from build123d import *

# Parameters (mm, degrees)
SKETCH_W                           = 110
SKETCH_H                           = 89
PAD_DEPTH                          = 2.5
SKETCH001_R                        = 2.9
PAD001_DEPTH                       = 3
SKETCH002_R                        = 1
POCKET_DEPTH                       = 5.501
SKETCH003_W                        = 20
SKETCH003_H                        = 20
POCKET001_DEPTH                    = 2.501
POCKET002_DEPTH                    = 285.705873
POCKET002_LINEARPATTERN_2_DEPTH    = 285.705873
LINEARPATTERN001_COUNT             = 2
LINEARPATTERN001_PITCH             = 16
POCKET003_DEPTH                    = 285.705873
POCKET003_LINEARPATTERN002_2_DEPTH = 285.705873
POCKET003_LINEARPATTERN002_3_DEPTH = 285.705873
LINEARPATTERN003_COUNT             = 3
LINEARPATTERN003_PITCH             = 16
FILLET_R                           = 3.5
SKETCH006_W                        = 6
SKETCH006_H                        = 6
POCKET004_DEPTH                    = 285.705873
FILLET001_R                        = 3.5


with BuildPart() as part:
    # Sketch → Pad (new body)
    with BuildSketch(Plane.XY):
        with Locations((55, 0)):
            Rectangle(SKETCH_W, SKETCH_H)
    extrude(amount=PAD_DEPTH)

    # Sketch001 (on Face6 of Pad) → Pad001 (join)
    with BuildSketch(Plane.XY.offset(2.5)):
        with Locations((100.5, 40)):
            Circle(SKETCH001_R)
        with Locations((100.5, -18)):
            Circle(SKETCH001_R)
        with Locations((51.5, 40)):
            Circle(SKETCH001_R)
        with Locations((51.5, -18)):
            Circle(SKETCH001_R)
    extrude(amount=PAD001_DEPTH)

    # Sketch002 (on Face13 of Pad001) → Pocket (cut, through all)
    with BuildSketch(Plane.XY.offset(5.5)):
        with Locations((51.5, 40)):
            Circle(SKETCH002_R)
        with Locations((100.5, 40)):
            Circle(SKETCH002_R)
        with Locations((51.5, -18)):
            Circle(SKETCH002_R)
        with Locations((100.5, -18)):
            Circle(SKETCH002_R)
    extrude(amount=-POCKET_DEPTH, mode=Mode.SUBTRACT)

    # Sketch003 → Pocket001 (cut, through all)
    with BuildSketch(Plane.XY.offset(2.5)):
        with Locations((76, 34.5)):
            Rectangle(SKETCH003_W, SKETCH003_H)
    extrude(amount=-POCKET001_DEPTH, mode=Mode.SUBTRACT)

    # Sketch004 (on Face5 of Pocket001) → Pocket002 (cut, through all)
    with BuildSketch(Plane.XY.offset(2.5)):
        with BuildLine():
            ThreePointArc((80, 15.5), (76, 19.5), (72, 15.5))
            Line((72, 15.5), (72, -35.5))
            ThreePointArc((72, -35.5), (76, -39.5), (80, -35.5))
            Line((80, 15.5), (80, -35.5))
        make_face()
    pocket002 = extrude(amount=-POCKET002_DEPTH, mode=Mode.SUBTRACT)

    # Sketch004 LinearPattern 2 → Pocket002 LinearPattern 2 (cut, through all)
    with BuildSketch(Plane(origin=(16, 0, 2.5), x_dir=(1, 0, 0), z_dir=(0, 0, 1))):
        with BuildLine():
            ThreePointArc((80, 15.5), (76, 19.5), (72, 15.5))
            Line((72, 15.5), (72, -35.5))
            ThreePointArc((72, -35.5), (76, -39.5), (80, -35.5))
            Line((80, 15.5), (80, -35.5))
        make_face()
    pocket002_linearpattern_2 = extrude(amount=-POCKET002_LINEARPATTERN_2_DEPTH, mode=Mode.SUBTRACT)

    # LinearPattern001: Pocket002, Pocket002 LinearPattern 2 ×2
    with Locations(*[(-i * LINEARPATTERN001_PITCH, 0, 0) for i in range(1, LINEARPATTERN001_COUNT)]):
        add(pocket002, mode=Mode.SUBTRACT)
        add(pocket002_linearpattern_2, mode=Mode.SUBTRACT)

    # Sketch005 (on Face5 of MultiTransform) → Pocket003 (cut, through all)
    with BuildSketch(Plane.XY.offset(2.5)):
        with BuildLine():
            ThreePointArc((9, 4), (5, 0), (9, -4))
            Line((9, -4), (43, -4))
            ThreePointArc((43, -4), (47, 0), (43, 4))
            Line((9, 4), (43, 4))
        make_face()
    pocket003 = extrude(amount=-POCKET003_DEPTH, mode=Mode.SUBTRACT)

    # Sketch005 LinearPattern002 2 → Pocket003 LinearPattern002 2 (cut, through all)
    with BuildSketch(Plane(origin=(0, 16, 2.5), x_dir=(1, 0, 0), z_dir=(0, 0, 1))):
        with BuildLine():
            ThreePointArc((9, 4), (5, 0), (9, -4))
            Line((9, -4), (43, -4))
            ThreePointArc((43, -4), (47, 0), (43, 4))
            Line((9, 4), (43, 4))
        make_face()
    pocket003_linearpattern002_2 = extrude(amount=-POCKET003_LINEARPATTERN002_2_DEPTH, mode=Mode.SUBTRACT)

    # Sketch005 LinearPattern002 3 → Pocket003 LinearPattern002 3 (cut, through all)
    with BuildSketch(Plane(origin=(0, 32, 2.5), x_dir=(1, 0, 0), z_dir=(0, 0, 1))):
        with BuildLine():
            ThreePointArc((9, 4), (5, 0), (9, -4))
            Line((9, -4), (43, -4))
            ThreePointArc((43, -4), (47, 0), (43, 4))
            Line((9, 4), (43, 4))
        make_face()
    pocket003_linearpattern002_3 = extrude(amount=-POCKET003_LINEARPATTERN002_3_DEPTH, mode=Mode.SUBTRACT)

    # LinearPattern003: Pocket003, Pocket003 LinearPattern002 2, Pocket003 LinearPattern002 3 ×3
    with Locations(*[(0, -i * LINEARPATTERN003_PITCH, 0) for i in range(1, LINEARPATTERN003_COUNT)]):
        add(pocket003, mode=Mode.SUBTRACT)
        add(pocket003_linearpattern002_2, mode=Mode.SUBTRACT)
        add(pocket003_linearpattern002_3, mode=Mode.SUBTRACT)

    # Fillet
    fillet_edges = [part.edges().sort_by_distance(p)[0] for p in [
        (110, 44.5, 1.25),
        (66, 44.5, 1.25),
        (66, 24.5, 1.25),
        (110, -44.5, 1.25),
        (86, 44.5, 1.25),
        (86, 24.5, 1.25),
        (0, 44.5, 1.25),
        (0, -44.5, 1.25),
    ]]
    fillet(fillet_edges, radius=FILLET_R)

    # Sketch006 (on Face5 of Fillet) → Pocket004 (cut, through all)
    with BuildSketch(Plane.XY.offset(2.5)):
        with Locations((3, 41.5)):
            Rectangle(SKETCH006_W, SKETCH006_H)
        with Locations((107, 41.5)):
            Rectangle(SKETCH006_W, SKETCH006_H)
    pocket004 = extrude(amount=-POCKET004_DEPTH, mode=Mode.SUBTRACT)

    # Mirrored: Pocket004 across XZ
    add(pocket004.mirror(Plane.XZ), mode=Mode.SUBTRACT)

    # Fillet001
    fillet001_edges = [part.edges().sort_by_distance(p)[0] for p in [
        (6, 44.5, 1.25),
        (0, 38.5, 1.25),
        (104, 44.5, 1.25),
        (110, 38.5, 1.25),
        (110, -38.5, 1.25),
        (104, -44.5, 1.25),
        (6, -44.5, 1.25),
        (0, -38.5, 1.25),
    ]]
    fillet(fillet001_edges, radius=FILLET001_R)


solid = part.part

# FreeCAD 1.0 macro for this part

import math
import FreeCAD as App
import Part
import Sketcher

V = App.Vector


def edges_at(feature, points):
    """Names of the edges that pass closest to the given points."""
    edges = feature.Shape.Edges
    near = lambda p: min(range(len(edges)), key=lambda i: edges[i].distToShape(Part.Vertex(*p))[0])
    return sorted({f"Edge{near(p) + 1}" for p in points})


def add_polygon(sketch, points):
    """Adds a closed chain of lines whose ends are joined by coincident constraints."""
    first, n = sketch.GeometryCount, len(points)
    for a, b in zip(points, points[1:] + points[:1]):
        sketch.addGeometry(Part.LineSegment(App.Vector(*a, 0), App.Vector(*b, 0)), False)
    for i in range(n):
        sketch.addConstraint(Sketcher.Constraint("Coincident", first + i, 2, first + (i + 1) % n, 1))

doc = App.newDocument("Part")
params = doc.addObject("Spreadsheet::Sheet", "Params")
for row, (alias, value) in enumerate([
    ("sketch1_width", "110 mm"),
    ("sketch1_height", "89 mm"),
    ("pad1_length", "2.5 mm"),
    ("sketch2_diameter", "5.8 mm"),
    ("pad2_length", "3 mm"),
    ("sketch3_diameter", "2 mm"),
    ("sketch4_width", "20 mm"),
    ("sketch5_radius", "4 mm"),
    ("sketch5_height", "51 mm"),
    ("sketch6_radius", "4 mm"),
    ("sketch6_height", "51 mm"),
    ("linearpattern_pitch", "16 mm"),
    ("sketch7_radius", "4 mm"),
    ("sketch7_width", "34 mm"),
    ("sketch8_radius", "4 mm"),
    ("sketch8_width", "34 mm"),
    ("sketch9_radius", "4 mm"),
    ("sketch9_width", "34 mm"),
    ("linearpattern2_pitch", "16 mm"),
    ("fillet_radius", "3.5 mm"),
    ("sketch10_width", "6 mm"),
    ("fillet2_radius", "3.5 mm"),
], start=1):
    params.set(f"A{row}", alias)
    params.set(f"B{row}", "=" + value)
    params.setAlias(f"B{row}", alias)

body = doc.addObject("PartDesign::Body", "Body")

sketch1 = body.newObject("Sketcher::SketchObject", "Sketch")
sketch1.AttachmentSupport = (doc.getObject("XY_Plane"), [""])
sketch1.MapMode = "FlatFace"
add_polygon(sketch1, [(0, 44), (0, -44), (110, -44), (110, 44)])
sketch1.addConstraint(Sketcher.Constraint("Vertical", 0))
sketch1.addConstraint(Sketcher.Constraint("Horizontal", 1))
sketch1.addConstraint(Sketcher.Constraint("Vertical", 2))
sketch1.addConstraint(Sketcher.Constraint("Horizontal", 3))
sketch1.addConstraint(Sketcher.Constraint("Symmetric", 0, 2, 3, 2, -1, 1))
sketch1.addConstraint(Sketcher.Constraint("DistanceX", 1, 1, 1, 2, 110.0))
sketch1.addConstraint(Sketcher.Constraint("DistanceY", 0, 2, 0, 1, 89.0))
sketch1.setExpression("Constraints[9]", "Params.sketch1_width")
sketch1.setExpression("Constraints[10]", "Params.sketch1_height")
pad1 = body.newObject("PartDesign::Pad", "Pad")
pad1.Profile = sketch1
pad1.setExpression("Length", "Params.pad1_length")

sketch2 = body.newObject("Sketcher::SketchObject", "Sketch001")
sketch2.AttachmentSupport = (doc.getObject("XY_Plane"), [""])
sketch2.MapMode = "FlatFace"
sketch2.AttachmentOffset = App.Placement(V(0, 0, 2.5), App.Rotation())
sketch2.addGeometry(Part.Circle(V(100.5, 40, 0), V(0, 0, 1), 2.9), False)
sketch2.addGeometry(Part.Circle(V(100.5, -18, 0), V(0, 0, 1), 2.9), False)
sketch2.addGeometry(Part.Circle(V(51.5, 40, 0), V(0, 0, 1), 2.9), False)
sketch2.addGeometry(Part.Circle(V(51.5, -18, 0), V(0, 0, 1), 2.9), False)
sketch2.addConstraint(Sketcher.Constraint("Equal", 0, 1))
sketch2.addConstraint(Sketcher.Constraint("Equal", 1, 2))
sketch2.addConstraint(Sketcher.Constraint("Equal", 2, 3))
sketch2.addConstraint(Sketcher.Constraint("Horizontal", 0, 3, 2, 3))
sketch2.addConstraint(Sketcher.Constraint("Horizontal", 1, 3, 3, 3))
sketch2.addConstraint(Sketcher.Constraint("Vertical", 0, 3, 1, 3))
sketch2.addConstraint(Sketcher.Constraint("Vertical", 2, 3, 3, 3))
sketch2.addConstraint(Sketcher.Constraint("Diameter", 0, 5.8))
sketch2.addConstraint(Sketcher.Constraint("DistanceY", -1, 1, 0, 3, 40.0))
sketch2.addConstraint(Sketcher.Constraint("DistanceY", 1, 3, -1, 1, 18.0))
sketch2.addConstraint(Sketcher.Constraint("DistanceX", 2, 3, 0, 3, 49.0))
sketch2.addConstraint(Sketcher.Constraint("DistanceX", -1, 1, 0, 3, 100.5))
sketch2.setExpression("Constraints[7]", "Params.sketch2_diameter")
pad2 = body.newObject("PartDesign::Pad", "Pad001")
pad2.Profile = sketch2
pad2.setExpression("Length", "Params.pad2_length")

sketch3 = body.newObject("Sketcher::SketchObject", "Sketch002")
sketch3.AttachmentSupport = (doc.getObject("XY_Plane"), [""])
sketch3.MapMode = "FlatFace"
sketch3.AttachmentOffset = App.Placement(V(0, 0, 5.5), App.Rotation())
sketch3.addGeometry(Part.Circle(V(51.5, 40, 0), V(0, 0, 1), 1), False)
sketch3.addGeometry(Part.Circle(V(100.5, 40, 0), V(0, 0, 1), 1), False)
sketch3.addGeometry(Part.Circle(V(51.5, -18, 0), V(0, 0, 1), 1), False)
sketch3.addGeometry(Part.Circle(V(100.5, -18, 0), V(0, 0, 1), 1), False)
sketch3.addConstraint(Sketcher.Constraint("Equal", 0, 1))
sketch3.addConstraint(Sketcher.Constraint("Equal", 1, 2))
sketch3.addConstraint(Sketcher.Constraint("Equal", 2, 3))
sketch3.addConstraint(Sketcher.Constraint("Horizontal", 0, 3, 1, 3))
sketch3.addConstraint(Sketcher.Constraint("Horizontal", 2, 3, 3, 3))
sketch3.addConstraint(Sketcher.Constraint("Vertical", 0, 3, 2, 3))
sketch3.addConstraint(Sketcher.Constraint("Vertical", 1, 3, 3, 3))
sketch3.addConstraint(Sketcher.Constraint("Diameter", 0, 2.0))
sketch3.addConstraint(Sketcher.Constraint("DistanceY", -1, 1, 0, 3, 40.0))
sketch3.addConstraint(Sketcher.Constraint("DistanceY", 2, 3, -1, 1, 18.0))
sketch3.addConstraint(Sketcher.Constraint("DistanceX", 0, 3, 1, 3, 49.0))
sketch3.addConstraint(Sketcher.Constraint("DistanceX", -1, 1, 0, 3, 51.5))
sketch3.setExpression("Constraints[7]", "Params.sketch3_diameter")
pocket1 = body.newObject("PartDesign::Pocket", "Pocket")
pocket1.Profile = sketch3
pocket1.Type = "ThroughAll"

sketch4 = body.newObject("Sketcher::SketchObject", "Sketch003")
sketch4.AttachmentSupport = (doc.getObject("XY_Plane"), [""])
sketch4.MapMode = "FlatFace"
sketch4.AttachmentOffset = App.Placement(V(0, 0, 2.5), App.Rotation())
add_polygon(sketch4, [(66, 44), (66, 24), (86, 24), (86, 44)])
sketch4.addConstraint(Sketcher.Constraint("Vertical", 0))
sketch4.addConstraint(Sketcher.Constraint("Horizontal", 1))
sketch4.addConstraint(Sketcher.Constraint("Vertical", 2))
sketch4.addConstraint(Sketcher.Constraint("Horizontal", 3))
sketch4.addConstraint(Sketcher.Constraint("Equal", 3, 0))
sketch4.addConstraint(Sketcher.Constraint("DistanceX", 1, 1, 1, 2, 20.0))
sketch4.addConstraint(Sketcher.Constraint("DistanceX", -1, 1, 0, 2, 66.0))
sketch4.addConstraint(Sketcher.Constraint("DistanceY", -1, 1, 0, 2, 24.5))
sketch4.setExpression("Constraints[9]", "Params.sketch4_width")
pocket2 = body.newObject("PartDesign::Pocket", "Pocket001")
pocket2.Profile = sketch4
pocket2.Type = "ThroughAll"

sketch5 = body.newObject("Sketcher::SketchObject", "Sketch004")
sketch5.AttachmentSupport = (doc.getObject("XY_Plane"), [""])
sketch5.MapMode = "FlatFace"
sketch5.AttachmentOffset = App.Placement(V(0, 0, 2.5), App.Rotation())
sketch5.addGeometry(Part.ArcOfCircle(Part.Circle(V(76, 15.5, 0), V(0, 0, 1), 4), math.radians(0), math.radians(180)), False)
sketch5.addGeometry(Part.LineSegment(V(72, 15.5, 0), V(72, -35.5, 0)), False)
sketch5.addGeometry(Part.ArcOfCircle(Part.Circle(V(76, -35.5, 0), V(0, 0, 1), 4), math.radians(180), math.radians(360)), False)
sketch5.addGeometry(Part.LineSegment(V(80, -35.5, 0), V(80, 15.5, 0)), False)
sketch5.addConstraint(Sketcher.Constraint("Tangent", 0, 2, 1, 1))
sketch5.addConstraint(Sketcher.Constraint("Tangent", 1, 2, 2, 1))
sketch5.addConstraint(Sketcher.Constraint("Tangent", 2, 2, 3, 1))
sketch5.addConstraint(Sketcher.Constraint("Tangent", 3, 2, 0, 1))
sketch5.addConstraint(Sketcher.Constraint("Vertical", 1))
sketch5.addConstraint(Sketcher.Constraint("Vertical", 3))
sketch5.addConstraint(Sketcher.Constraint("Radius", 0, 4.0))
sketch5.addConstraint(Sketcher.Constraint("DistanceY", 1, 2, 1, 1, 51.0))
sketch5.addConstraint(Sketcher.Constraint("DistanceX", -1, 1, 0, 3, 76.0))
sketch5.addConstraint(Sketcher.Constraint("DistanceY", -1, 1, 0, 3, 15.5))
sketch5.setExpression("Constraints[6]", "Params.sketch5_radius")
sketch5.setExpression("Constraints[7]", "Params.sketch5_height")
pocket3 = body.newObject("PartDesign::Pocket", "Pocket002")
pocket3.Profile = sketch5
pocket3.Type = "ThroughAll"

sketch6 = body.newObject("Sketcher::SketchObject", "Sketch005")
sketch6.AttachmentSupport = (doc.getObject("XY_Plane"), [""])
sketch6.MapMode = "FlatFace"
sketch6.AttachmentOffset = App.Placement(V(0, 0, 2.5), App.Rotation())
sketch6.addGeometry(Part.ArcOfCircle(Part.Circle(V(92, 15.5, 0), V(0, 0, 1), 4), math.radians(0), math.radians(180)), False)
sketch6.addGeometry(Part.LineSegment(V(88, 15.5, 0), V(88, -35.5, 0)), False)
sketch6.addGeometry(Part.ArcOfCircle(Part.Circle(V(92, -35.5, 0), V(0, 0, 1), 4), math.radians(180), math.radians(360)), False)
sketch6.addGeometry(Part.LineSegment(V(96, -35.5, 0), V(96, 15.5, 0)), False)
sketch6.addConstraint(Sketcher.Constraint("Tangent", 0, 2, 1, 1))
sketch6.addConstraint(Sketcher.Constraint("Tangent", 1, 2, 2, 1))
sketch6.addConstraint(Sketcher.Constraint("Tangent", 2, 2, 3, 1))
sketch6.addConstraint(Sketcher.Constraint("Tangent", 3, 2, 0, 1))
sketch6.addConstraint(Sketcher.Constraint("Vertical", 1))
sketch6.addConstraint(Sketcher.Constraint("Vertical", 3))
sketch6.addConstraint(Sketcher.Constraint("Radius", 0, 4.0))
sketch6.addConstraint(Sketcher.Constraint("DistanceY", 1, 2, 1, 1, 51.0))
sketch6.addConstraint(Sketcher.Constraint("DistanceX", -1, 1, 0, 3, 92.0))
sketch6.addConstraint(Sketcher.Constraint("DistanceY", -1, 1, 0, 3, 15.5))
sketch6.setExpression("Constraints[6]", "Params.sketch6_radius")
sketch6.setExpression("Constraints[7]", "Params.sketch6_height")
pocket4 = body.newObject("PartDesign::Pocket", "Pocket003")
pocket4.Profile = sketch6
pocket4.Type = "ThroughAll"
doc.recompute()

linearpattern = body.newObject("PartDesign::LinearPattern", "LinearPattern")
linearpattern.Originals = [pocket3, pocket4]
linearpattern.Direction = (doc.getObject("X_Axis"), [""])
linearpattern.Mode = "offset"
linearpattern.setExpression("Offset", "Params.linearpattern_pitch")
linearpattern.Occurrences = 2
linearpattern.Reversed = True
body.Tip = linearpattern

sketch7 = body.newObject("Sketcher::SketchObject", "Sketch006")
sketch7.AttachmentSupport = (doc.getObject("XY_Plane"), [""])
sketch7.MapMode = "FlatFace"
sketch7.AttachmentOffset = App.Placement(V(0, 0, 2.5), App.Rotation())
sketch7.addGeometry(Part.ArcOfCircle(Part.Circle(V(9, 0, 0), V(0, 0, 1), 4), math.radians(90), math.radians(270)), False)
sketch7.addGeometry(Part.LineSegment(V(9, -4, 0), V(43, -4, 0)), False)
sketch7.addGeometry(Part.ArcOfCircle(Part.Circle(V(43, 0, 0), V(0, 0, 1), 4), math.radians(-90), math.radians(90)), False)
sketch7.addGeometry(Part.LineSegment(V(43, 4, 0), V(9, 4, 0)), False)
sketch7.addConstraint(Sketcher.Constraint("Tangent", 0, 2, 1, 1))
sketch7.addConstraint(Sketcher.Constraint("Tangent", 1, 2, 2, 1))
sketch7.addConstraint(Sketcher.Constraint("Tangent", 2, 2, 3, 1))
sketch7.addConstraint(Sketcher.Constraint("Tangent", 3, 2, 0, 1))
sketch7.addConstraint(Sketcher.Constraint("Horizontal", 1))
sketch7.addConstraint(Sketcher.Constraint("Horizontal", 3))
sketch7.addConstraint(Sketcher.Constraint("PointOnObject", 0, 3, -1))
sketch7.addConstraint(Sketcher.Constraint("Radius", 0, 4.0))
sketch7.addConstraint(Sketcher.Constraint("DistanceX", 1, 1, 1, 2, 34.0))
sketch7.addConstraint(Sketcher.Constraint("DistanceX", -1, 1, 0, 3, 9.0))
sketch7.setExpression("Constraints[7]", "Params.sketch7_radius")
sketch7.setExpression("Constraints[8]", "Params.sketch7_width")
pocket5 = body.newObject("PartDesign::Pocket", "Pocket004")
pocket5.Profile = sketch7
pocket5.Type = "ThroughAll"

sketch8 = body.newObject("Sketcher::SketchObject", "Sketch007")
sketch8.AttachmentSupport = (doc.getObject("XY_Plane"), [""])
sketch8.MapMode = "FlatFace"
sketch8.AttachmentOffset = App.Placement(V(0, 0, 2.5), App.Rotation())
sketch8.addGeometry(Part.ArcOfCircle(Part.Circle(V(9, 16, 0), V(0, 0, 1), 4), math.radians(90), math.radians(270)), False)
sketch8.addGeometry(Part.LineSegment(V(9, 12, 0), V(43, 12, 0)), False)
sketch8.addGeometry(Part.ArcOfCircle(Part.Circle(V(43, 16, 0), V(0, 0, 1), 4), math.radians(-90), math.radians(90)), False)
sketch8.addGeometry(Part.LineSegment(V(43, 20, 0), V(9, 20, 0)), False)
sketch8.addConstraint(Sketcher.Constraint("Tangent", 0, 2, 1, 1))
sketch8.addConstraint(Sketcher.Constraint("Tangent", 1, 2, 2, 1))
sketch8.addConstraint(Sketcher.Constraint("Tangent", 2, 2, 3, 1))
sketch8.addConstraint(Sketcher.Constraint("Tangent", 3, 2, 0, 1))
sketch8.addConstraint(Sketcher.Constraint("Horizontal", 1))
sketch8.addConstraint(Sketcher.Constraint("Horizontal", 3))
sketch8.addConstraint(Sketcher.Constraint("Radius", 0, 4.0))
sketch8.addConstraint(Sketcher.Constraint("DistanceX", 1, 1, 1, 2, 34.0))
sketch8.addConstraint(Sketcher.Constraint("DistanceX", -1, 1, 0, 3, 9.0))
sketch8.addConstraint(Sketcher.Constraint("DistanceY", -1, 1, 0, 3, 16.0))
sketch8.setExpression("Constraints[6]", "Params.sketch8_radius")
sketch8.setExpression("Constraints[7]", "Params.sketch8_width")
pocket6 = body.newObject("PartDesign::Pocket", "Pocket005")
pocket6.Profile = sketch8
pocket6.Type = "ThroughAll"

sketch9 = body.newObject("Sketcher::SketchObject", "Sketch008")
sketch9.AttachmentSupport = (doc.getObject("XY_Plane"), [""])
sketch9.MapMode = "FlatFace"
sketch9.AttachmentOffset = App.Placement(V(0, 0, 2.5), App.Rotation())
sketch9.addGeometry(Part.ArcOfCircle(Part.Circle(V(9, 32, 0), V(0, 0, 1), 4), math.radians(90), math.radians(270)), False)
sketch9.addGeometry(Part.LineSegment(V(9, 28, 0), V(43, 28, 0)), False)
sketch9.addGeometry(Part.ArcOfCircle(Part.Circle(V(43, 32, 0), V(0, 0, 1), 4), math.radians(-90), math.radians(90)), False)
sketch9.addGeometry(Part.LineSegment(V(43, 36, 0), V(9, 36, 0)), False)
sketch9.addConstraint(Sketcher.Constraint("Tangent", 0, 2, 1, 1))
sketch9.addConstraint(Sketcher.Constraint("Tangent", 1, 2, 2, 1))
sketch9.addConstraint(Sketcher.Constraint("Tangent", 2, 2, 3, 1))
sketch9.addConstraint(Sketcher.Constraint("Tangent", 3, 2, 0, 1))
sketch9.addConstraint(Sketcher.Constraint("Horizontal", 1))
sketch9.addConstraint(Sketcher.Constraint("Horizontal", 3))
sketch9.addConstraint(Sketcher.Constraint("Radius", 0, 4.0))
sketch9.addConstraint(Sketcher.Constraint("DistanceX", 1, 1, 1, 2, 34.0))
sketch9.addConstraint(Sketcher.Constraint("DistanceX", -1, 1, 0, 3, 9.0))
sketch9.addConstraint(Sketcher.Constraint("DistanceY", -1, 1, 0, 3, 32.0))
sketch9.setExpression("Constraints[6]", "Params.sketch9_radius")
sketch9.setExpression("Constraints[7]", "Params.sketch9_width")
pocket7 = body.newObject("PartDesign::Pocket", "Pocket006")
pocket7.Profile = sketch9
pocket7.Type = "ThroughAll"
doc.recompute()

linearpattern2 = body.newObject("PartDesign::LinearPattern", "LinearPattern001")
linearpattern2.Originals = [pocket5, pocket6, pocket7]
linearpattern2.Direction = (doc.getObject("Y_Axis"), [""])
linearpattern2.Mode = "offset"
linearpattern2.setExpression("Offset", "Params.linearpattern2_pitch")
linearpattern2.Occurrences = 3
linearpattern2.Reversed = True
body.Tip = linearpattern2
doc.recompute()

fillet = body.newObject("PartDesign::Fillet", "Fillet")
fillet.Base = (linearpattern2, edges_at(linearpattern2, [
    (110, 44.5, 1.25),
    (66, 44.5, 1.25),
    (66, 24.5, 1.25),
    (110, -44.5, 1.25),
    (86, 44.5, 1.25),
    (86, 24.5, 1.25),
    (0, 44.5, 1.25),
    (0, -44.5, 1.25),
]))
fillet.setExpression("Radius", "Params.fillet_radius")

sketch10 = body.newObject("Sketcher::SketchObject", "Sketch009")
sketch10.AttachmentSupport = (doc.getObject("XY_Plane"), [""])
sketch10.MapMode = "FlatFace"
sketch10.AttachmentOffset = App.Placement(V(0, 0, 2.5), App.Rotation())
add_polygon(sketch10, [(0, 44), (0, 38), (6, 38), (6, 44)])
add_polygon(sketch10, [(104, 44), (104, 38), (110, 38), (110, 44)])
sketch10.addConstraint(Sketcher.Constraint("Vertical", 0))
sketch10.addConstraint(Sketcher.Constraint("Horizontal", 1))
sketch10.addConstraint(Sketcher.Constraint("Vertical", 2))
sketch10.addConstraint(Sketcher.Constraint("Horizontal", 3))
sketch10.addConstraint(Sketcher.Constraint("Vertical", 4))
sketch10.addConstraint(Sketcher.Constraint("Horizontal", 5))
sketch10.addConstraint(Sketcher.Constraint("Vertical", 6))
sketch10.addConstraint(Sketcher.Constraint("Horizontal", 7))
sketch10.addConstraint(Sketcher.Constraint("PointOnObject", 0, 2, -2))
sketch10.addConstraint(Sketcher.Constraint("Horizontal", 1, 2, 4, 2))
sketch10.addConstraint(Sketcher.Constraint("Horizontal", 3, 2, 6, 2))
sketch10.addConstraint(Sketcher.Constraint("Equal", 3, 5))
sketch10.addConstraint(Sketcher.Constraint("Equal", 7, 0))
sketch10.addConstraint(Sketcher.Constraint("DistanceX", 1, 1, 1, 2, 6.0))
sketch10.addConstraint(Sketcher.Constraint("DistanceX", -1, 1, 4, 2, 104.0))
sketch10.addConstraint(Sketcher.Constraint("DistanceY", -1, 1, 0, 2, 38.5))
sketch10.setExpression("Constraints[21]", "Params.sketch10_width")
pocket8 = body.newObject("PartDesign::Pocket", "Pocket007")
pocket8.Profile = sketch10
pocket8.Type = "ThroughAll"
doc.recompute()

mirrored = body.newObject("PartDesign::Mirrored", "Mirrored")
mirrored.Originals = [pocket8]
mirrored.MirrorPlane = (doc.getObject("XZ_Plane"), [""])
body.Tip = mirrored
doc.recompute()

fillet2 = body.newObject("PartDesign::Fillet", "Fillet001")
fillet2.Base = (mirrored, edges_at(mirrored, [
    (6, 44.5, 1.25),
    (0, 38.5, 1.25),
    (104, 44.5, 1.25),
    (110, 38.5, 1.25),
    (110, -38.5, 1.25),
    (104, -44.5, 1.25),
    (6, -44.5, 1.25),
    (0, -38.5, 1.25),
]))
fillet2.setExpression("Radius", "Params.fillet2_radius")

doc.recompute()
